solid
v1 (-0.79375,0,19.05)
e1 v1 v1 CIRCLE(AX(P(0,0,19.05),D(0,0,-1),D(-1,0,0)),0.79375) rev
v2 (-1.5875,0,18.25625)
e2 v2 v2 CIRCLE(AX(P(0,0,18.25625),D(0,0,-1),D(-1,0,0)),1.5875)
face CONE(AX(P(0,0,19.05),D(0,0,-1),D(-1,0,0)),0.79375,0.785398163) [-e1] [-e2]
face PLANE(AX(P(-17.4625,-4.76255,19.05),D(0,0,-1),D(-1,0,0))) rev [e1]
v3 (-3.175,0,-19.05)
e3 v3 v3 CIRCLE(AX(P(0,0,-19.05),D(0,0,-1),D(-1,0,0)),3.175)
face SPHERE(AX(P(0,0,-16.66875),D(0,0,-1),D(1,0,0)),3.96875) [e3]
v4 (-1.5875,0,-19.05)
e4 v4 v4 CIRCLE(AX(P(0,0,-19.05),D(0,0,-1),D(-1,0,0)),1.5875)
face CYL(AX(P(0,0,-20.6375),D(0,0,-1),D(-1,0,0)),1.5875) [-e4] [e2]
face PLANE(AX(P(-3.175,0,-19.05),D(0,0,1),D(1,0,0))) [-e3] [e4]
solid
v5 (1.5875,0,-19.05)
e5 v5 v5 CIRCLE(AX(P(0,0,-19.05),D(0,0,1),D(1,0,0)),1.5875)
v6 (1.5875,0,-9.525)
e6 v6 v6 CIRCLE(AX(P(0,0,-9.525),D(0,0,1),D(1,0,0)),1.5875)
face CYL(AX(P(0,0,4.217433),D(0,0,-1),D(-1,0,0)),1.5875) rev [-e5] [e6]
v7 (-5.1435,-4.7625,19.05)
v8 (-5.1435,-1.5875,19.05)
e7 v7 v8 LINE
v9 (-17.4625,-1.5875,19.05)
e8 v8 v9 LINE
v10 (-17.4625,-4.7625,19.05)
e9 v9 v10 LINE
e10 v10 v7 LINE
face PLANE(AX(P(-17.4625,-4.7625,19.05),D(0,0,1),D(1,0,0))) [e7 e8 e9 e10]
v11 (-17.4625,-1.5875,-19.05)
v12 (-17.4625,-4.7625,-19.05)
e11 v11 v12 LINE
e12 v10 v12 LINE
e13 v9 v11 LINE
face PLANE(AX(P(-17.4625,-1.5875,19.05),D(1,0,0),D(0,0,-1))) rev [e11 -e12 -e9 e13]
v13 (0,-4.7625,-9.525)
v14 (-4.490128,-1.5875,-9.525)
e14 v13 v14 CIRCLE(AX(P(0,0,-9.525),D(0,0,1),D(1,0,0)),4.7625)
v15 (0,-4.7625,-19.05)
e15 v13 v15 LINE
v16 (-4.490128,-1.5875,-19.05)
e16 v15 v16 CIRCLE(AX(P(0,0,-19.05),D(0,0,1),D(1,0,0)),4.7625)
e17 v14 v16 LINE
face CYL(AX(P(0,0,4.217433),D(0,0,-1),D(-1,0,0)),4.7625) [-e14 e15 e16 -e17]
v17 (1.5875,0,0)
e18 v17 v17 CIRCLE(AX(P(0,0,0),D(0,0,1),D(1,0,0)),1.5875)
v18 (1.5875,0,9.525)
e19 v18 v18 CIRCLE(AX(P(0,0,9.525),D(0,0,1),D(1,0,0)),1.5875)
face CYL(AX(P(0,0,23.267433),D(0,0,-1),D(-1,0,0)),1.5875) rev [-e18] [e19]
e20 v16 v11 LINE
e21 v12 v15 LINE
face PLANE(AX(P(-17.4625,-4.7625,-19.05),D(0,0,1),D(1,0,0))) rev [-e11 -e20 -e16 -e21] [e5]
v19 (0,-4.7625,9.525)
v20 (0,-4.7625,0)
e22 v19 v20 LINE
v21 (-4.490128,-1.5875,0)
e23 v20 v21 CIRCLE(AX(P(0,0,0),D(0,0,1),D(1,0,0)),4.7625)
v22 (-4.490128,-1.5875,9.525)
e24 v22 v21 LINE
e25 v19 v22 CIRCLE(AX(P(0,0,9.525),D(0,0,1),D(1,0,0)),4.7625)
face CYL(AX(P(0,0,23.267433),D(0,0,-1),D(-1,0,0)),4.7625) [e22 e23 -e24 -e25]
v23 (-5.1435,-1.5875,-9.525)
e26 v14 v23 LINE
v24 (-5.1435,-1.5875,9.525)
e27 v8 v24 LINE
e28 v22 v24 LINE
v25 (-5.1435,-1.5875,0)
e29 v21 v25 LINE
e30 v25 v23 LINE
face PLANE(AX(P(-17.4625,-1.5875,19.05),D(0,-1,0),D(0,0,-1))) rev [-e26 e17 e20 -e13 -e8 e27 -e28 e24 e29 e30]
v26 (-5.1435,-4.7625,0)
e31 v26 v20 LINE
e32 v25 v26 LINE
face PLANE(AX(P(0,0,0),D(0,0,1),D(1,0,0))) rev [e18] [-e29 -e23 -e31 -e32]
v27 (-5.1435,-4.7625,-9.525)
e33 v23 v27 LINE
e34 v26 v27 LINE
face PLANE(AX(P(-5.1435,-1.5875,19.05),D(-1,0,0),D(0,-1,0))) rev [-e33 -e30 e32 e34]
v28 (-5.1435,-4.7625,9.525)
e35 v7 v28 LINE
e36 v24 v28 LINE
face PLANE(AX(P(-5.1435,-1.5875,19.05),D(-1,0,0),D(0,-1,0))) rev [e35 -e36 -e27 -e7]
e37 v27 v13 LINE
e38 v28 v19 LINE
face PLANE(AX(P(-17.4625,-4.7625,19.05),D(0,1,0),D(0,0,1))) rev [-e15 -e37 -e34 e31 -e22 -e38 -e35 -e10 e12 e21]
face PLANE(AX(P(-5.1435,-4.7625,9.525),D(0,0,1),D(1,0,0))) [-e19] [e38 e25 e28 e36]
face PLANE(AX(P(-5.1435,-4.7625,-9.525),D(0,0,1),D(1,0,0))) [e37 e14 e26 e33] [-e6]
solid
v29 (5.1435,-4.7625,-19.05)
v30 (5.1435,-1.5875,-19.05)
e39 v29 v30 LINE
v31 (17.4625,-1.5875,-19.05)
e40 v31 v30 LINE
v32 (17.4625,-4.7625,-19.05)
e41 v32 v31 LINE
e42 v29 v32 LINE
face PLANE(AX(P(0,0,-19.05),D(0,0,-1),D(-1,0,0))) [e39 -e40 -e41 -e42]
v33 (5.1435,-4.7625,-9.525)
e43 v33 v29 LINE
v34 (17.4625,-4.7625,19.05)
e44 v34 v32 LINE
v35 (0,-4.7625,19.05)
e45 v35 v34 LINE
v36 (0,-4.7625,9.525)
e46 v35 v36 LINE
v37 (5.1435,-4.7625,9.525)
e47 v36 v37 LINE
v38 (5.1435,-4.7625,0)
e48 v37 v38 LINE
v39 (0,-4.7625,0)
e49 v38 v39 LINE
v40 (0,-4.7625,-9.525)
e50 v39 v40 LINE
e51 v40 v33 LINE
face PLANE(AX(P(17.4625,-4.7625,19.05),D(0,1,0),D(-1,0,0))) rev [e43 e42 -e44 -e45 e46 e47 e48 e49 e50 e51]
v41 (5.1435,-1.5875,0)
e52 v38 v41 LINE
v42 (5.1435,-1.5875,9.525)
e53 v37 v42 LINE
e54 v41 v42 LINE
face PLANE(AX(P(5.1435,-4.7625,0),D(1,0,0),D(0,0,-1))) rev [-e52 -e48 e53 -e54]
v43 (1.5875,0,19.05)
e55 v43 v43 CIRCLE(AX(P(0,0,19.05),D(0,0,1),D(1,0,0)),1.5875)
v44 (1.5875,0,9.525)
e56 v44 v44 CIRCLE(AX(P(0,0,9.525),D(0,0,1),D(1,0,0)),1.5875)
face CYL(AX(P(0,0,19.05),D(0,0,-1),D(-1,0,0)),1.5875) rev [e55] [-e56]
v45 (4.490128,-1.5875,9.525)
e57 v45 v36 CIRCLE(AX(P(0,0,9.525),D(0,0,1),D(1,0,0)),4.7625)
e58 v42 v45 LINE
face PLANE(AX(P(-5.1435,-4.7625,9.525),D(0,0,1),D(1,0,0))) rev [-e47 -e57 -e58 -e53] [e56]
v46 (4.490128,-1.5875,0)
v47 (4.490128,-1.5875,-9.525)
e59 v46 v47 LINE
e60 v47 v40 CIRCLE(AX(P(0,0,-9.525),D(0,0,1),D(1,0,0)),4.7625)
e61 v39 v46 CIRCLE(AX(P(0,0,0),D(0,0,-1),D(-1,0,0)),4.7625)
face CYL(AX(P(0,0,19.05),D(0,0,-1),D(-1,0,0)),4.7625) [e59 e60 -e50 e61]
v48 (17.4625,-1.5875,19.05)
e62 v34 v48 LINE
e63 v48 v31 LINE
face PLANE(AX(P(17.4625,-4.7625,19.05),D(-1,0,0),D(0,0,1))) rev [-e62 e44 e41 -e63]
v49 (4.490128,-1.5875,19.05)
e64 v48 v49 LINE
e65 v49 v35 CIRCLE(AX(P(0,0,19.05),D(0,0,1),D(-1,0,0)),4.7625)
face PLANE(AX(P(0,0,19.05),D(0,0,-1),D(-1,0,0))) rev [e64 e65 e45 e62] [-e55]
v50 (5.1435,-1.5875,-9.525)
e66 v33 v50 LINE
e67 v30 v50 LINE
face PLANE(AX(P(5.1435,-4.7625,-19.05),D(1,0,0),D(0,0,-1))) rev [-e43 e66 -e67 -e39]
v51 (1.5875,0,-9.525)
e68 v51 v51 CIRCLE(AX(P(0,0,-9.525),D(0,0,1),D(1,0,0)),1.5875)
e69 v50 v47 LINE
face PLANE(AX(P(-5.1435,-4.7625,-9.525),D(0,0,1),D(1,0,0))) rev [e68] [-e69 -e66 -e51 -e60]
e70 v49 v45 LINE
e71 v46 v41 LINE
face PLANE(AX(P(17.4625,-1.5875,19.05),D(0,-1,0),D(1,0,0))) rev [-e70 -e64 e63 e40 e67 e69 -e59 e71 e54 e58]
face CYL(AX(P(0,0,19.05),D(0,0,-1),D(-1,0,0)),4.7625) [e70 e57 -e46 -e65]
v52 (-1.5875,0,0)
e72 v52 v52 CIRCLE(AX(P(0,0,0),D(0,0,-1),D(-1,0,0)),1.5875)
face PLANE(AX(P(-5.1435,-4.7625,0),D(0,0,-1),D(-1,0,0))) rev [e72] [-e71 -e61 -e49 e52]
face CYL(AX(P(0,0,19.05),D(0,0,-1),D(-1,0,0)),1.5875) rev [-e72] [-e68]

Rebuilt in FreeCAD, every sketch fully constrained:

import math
import FreeCAD as App
import Part
import Sketcher

V = App.Vector
Q = App.Units.Quantity


def edges_at(feature, points):
    """Names of the edges that pass closest to the given points."""
    edges = feature.Shape.Edges
    near = lambda p: min(range(len(edges)), key=lambda i: edges[i].distToShape(Part.Vertex(*p))[0])
    return sorted({f"Edge{near(p) + 1}" for p in points})


def add_polygon(sketch, points):
    """Adds a closed chain of lines whose ends are joined by coincident constraints."""
    first, n = sketch.GeometryCount, len(points)
    for a, b in zip(points, points[1:] + points[:1]):
        sketch.addGeometry(Part.LineSegment(App.Vector(*a, 0), App.Vector(*b, 0)), False)
    for i in range(n):
        sketch.addConstraint(Sketcher.Constraint("Coincident", first + i, 2, first + (i + 1) % n, 1))

doc = App.newDocument("Part")
params = doc.addObject("Spreadsheet::Sheet", "Params")
for row, (alias, value) in enumerate([
    ("sketch1_diameter", "0.125 in"),
    ("sketch1_radius", "0.1875 in"),
    ("sketch1_width", "0.6875 in"),
    ("sketch1_height", "0.125 in"),
    ("pad1_length", "1.5 in"),
    ("sketch2_width", "0.405 in"),
    ("sketch2_height", "0.375 in"),
    ("sketch3_width", "0.485 in"),
    ("sketch3_height", "0.125 in"),
    ("pad2_length", "1.5 in"),
    ("sketch4_diameter", "0.125 in"),
    ("sketch4_radius", "0.1875 in"),
    ("sketch4_height", "0.125 in"),
    ("pad3_length", "0.375 in"),
    ("sketch5_diameter", "0.125 in"),
    ("sketch5_radius", "0.1875 in"),
    ("sketch5_height", "0.125 in"),
    ("pad4_length", "0.375 in"),
    ("sketch6_height", "1.5 in"),
    ("sketch6_radius", "0.15625 in"),
    ("sketch6_width", "0.0625 in"),
    ("sketch6_height2", "1.625 in"),
    ("revolution_angle", "360 deg"),
    ("sketch7_width", "1.375 in"),
    ("sketch7_height", "0.0625 in"),
    ("chamfer_size", "0.03125 in"),
], start=1):
    params.set(f"A{row}", alias)
    params.set(f"B{row}", "=" + value)
    params.setAlias(f"B{row}", alias)

body = doc.addObject("PartDesign::Body", "Body")

sketch1 = body.newObject("Sketcher::SketchObject", "Sketch")
sketch1.AttachmentSupport = (doc.getObject("XY_Plane"), [""])
sketch1.MapMode = "FlatFace"
sketch1.addGeometry([
    Part.LineSegment(V(0, -4.8, 0), V(17.5, -4.8, 0)),
    Part.LineSegment(V(17.5, -4.8, 0), V(17.5, -1.6, 0)),
    Part.LineSegment(V(17.5, -1.6, 0), V(4.5, -1.6, 0)),
    Part.ArcOfCircle(Part.Circle(V(0, 0, 0), V(0, 0, 1), 4.8), math.radians(-19), math.radians(270)),
    Part.Circle(V(0, 0, 0), V(0, 0, 1), 1.6),
], False)
sketch1.addConstraint([
    Sketcher.Constraint("Coincident", 0, 2, 1, 1),
    Sketcher.Constraint("Coincident", 1, 2, 2, 1),
    Sketcher.Constraint("Coincident", 2, 2, 3, 1),
    Sketcher.Constraint("Tangent", 3, 2, 0, 1),
    Sketcher.Constraint("Horizontal", 0),
    Sketcher.Constraint("Vertical", 1),
    Sketcher.Constraint("Horizontal", 2),
    Sketcher.Constraint("Coincident", 3, 3, -1, 1),
    Sketcher.Constraint("Coincident", 4, 3, -1, 1),
    Sketcher.Constraint("Diameter", 4, Q("0.125 in")),
    Sketcher.Constraint("Radius", 3, Q("0.1875 in")),
    Sketcher.Constraint("DistanceX", 0, 1, 0, 2, Q("0.6875 in")),
    Sketcher.Constraint("DistanceY", 1, 1, 1, 2, Q("0.125 in")),
])
sketch1.setExpression("Constraints[9]", "Params.sketch1_diameter")
sketch1.setExpression("Constraints[10]", "Params.sketch1_radius")
sketch1.setExpression("Constraints[11]", "Params.sketch1_width")
sketch1.setExpression("Constraints[12]", "Params.sketch1_height")
pad1 = body.newObject("PartDesign::Pad", "Pad")
pad1.Profile = sketch1
pad1.setExpression("Length", "Params.pad1_length")
pad1.Midplane = True

sketch2 = body.newObject("Sketcher::SketchObject", "Sketch001")
sketch2.AttachmentSupport = (doc.getObject("XZ_Plane"), [""])
sketch2.MapMode = "FlatFace"
add_polygon(sketch2, [(-5, -19), (-5, -10), (5, -10), (5, -19)])
add_polygon(sketch2, [(-5, 0), (-5, 10), (5, 10), (5, 0)])
sketch2.addConstraint([
    Sketcher.Constraint("Vertical", 0),
    Sketcher.Constraint("Horizontal", 1),
    Sketcher.Constraint("Vertical", 2),
    Sketcher.Constraint("Horizontal", 3),
    Sketcher.Constraint("Vertical", 4),
    Sketcher.Constraint("Horizontal", 5),
    Sketcher.Constraint("Vertical", 6),
    Sketcher.Constraint("Horizontal", 7),
    Sketcher.Constraint("Symmetric", 1, 2, 4, 2, -1, 1),
    Sketcher.Constraint("Symmetric", 6, 2, 7, 2, -1, 1),
    Sketcher.Constraint("Vertical", 3, 2, 4, 2),
    Sketcher.Constraint("Equal", 2, 4),
    Sketcher.Constraint("DistanceX", 1, 1, 1, 2, Q("0.405 in")),
    Sketcher.Constraint("DistanceY", 0, 1, 0, 2, Q("0.375 in")),
])
sketch2.setExpression("Constraints[20]", "Params.sketch2_width")
sketch2.setExpression("Constraints[21]", "Params.sketch2_height")
pocket1 = body.newObject("PartDesign::Pocket", "Pocket")
pocket1.Profile = sketch2
pocket1.Type = "ThroughAll"
pocket1.Midplane = True
body2 = doc.addObject("PartDesign::Body", "Body001")

sketch3 = body2.newObject("Sketcher::SketchObject", "Sketch002")
sketch3.AttachmentSupport = (doc.getObject("XY_Plane001"), [""])
sketch3.MapMode = "FlatFace"
add_polygon(sketch3, [(-17.5, -1.6), (-17.5, -4.8), (-5.1, -4.8), (-5.1, -1.6)])
sketch3.addConstraint([
    Sketcher.Constraint("Vertical", 0),
    Sketcher.Constraint("Horizontal", 1),
    Sketcher.Constraint("Vertical", 2),
    Sketcher.Constraint("Horizontal", 3),
    Sketcher.Constraint("DistanceX", 1, 1, 1, 2, Q("0.485 in")),
    Sketcher.Constraint("DistanceY", 0, 2, 0, 1, Q("0.125 in")),
    Sketcher.Constraint("DistanceX", 0, 2, -1, 1, Q("0.6875 in")),
    Sketcher.Constraint("DistanceY", 0, 2, -1, 1, Q("0.1875 in")),
])
sketch3.setExpression("Constraints[8]", "Params.sketch3_width")
sketch3.setExpression("Constraints[9]", "Params.sketch3_height")
pad2 = body2.newObject("PartDesign::Pad", "Pad001")
pad2.Profile = sketch3
pad2.setExpression("Length", "Params.pad2_length")
pad2.Midplane = True

sketch4 = body2.newObject("Sketcher::SketchObject", "Sketch003")
sketch4.AttachmentSupport = (doc.getObject("XY_Plane001"), [""])
sketch4.MapMode = "FlatFace"
sketch4.AttachmentOffset = App.Placement(V(0, 0, -0.75 * 25.4), App.Rotation())
sketch4.addGeometry([
    Part.LineSegment(V(-5.1, -4.8, 0), V(0, -4.8, 0)),
    Part.ArcOfCircle(Part.Circle(V(0, 0, 0), V(0, 0, 1), 4.8), math.radians(-90), math.radians(199)),
    Part.LineSegment(V(-4.5, -1.6, 0), V(-5.1, -1.6, 0)),
    Part.LineSegment(V(-5.1, -1.6, 0), V(-5.1, -4.8, 0)),
    Part.Circle(V(0, 0, 0), V(0, 0, 1), 1.6),
], False)
sketch4.addConstraint([
    Sketcher.Constraint("Tangent", 0, 2, 1, 1),
    Sketcher.Constraint("Coincident", 1, 2, 2, 1),
    Sketcher.Constraint("Coincident", 2, 2, 3, 1),
    Sketcher.Constraint("Coincident", 3, 2, 0, 1),
    Sketcher.Constraint("Horizontal", 0),
    Sketcher.Constraint("Horizontal", 2),
    Sketcher.Constraint("Vertical", 3),
    Sketcher.Constraint("Coincident", 1, 3, -1, 1),
    Sketcher.Constraint("Coincident", 4, 3, -1, 1),
    Sketcher.Constraint("Diameter", 4, Q("0.125 in")),
    Sketcher.Constraint("Radius", 1, Q("0.1875 in")),
    Sketcher.Constraint("DistanceY", 3, 2, 3, 1, Q("0.125 in")),
    Sketcher.Constraint("DistanceX", 0, 1, 0, 2, Q("0.2025 in")),
])
sketch4.setExpression("Constraints[9]", "Params.sketch4_diameter")
sketch4.setExpression("Constraints[10]", "Params.sketch4_radius")
sketch4.setExpression("Constraints[11]", "Params.sketch4_height")
pad3 = body2.newObject("PartDesign::Pad", "Pad002")
pad3.Profile = sketch4
pad3.setExpression("Length", "Params.pad3_length")

sketch5 = body2.newObject("Sketcher::SketchObject", "Sketch004")
sketch5.AttachmentSupport = (doc.getObject("XY_Plane001"), [""])
sketch5.MapMode = "FlatFace"
sketch5.addGeometry([
    Part.LineSegment(V(-5.1, -4.8, 0), V(0, -4.8, 0)),
    Part.ArcOfCircle(Part.Circle(V(0, 0, 0), V(0, 0, 1), 4.8), math.radians(-90), math.radians(199)),
    Part.LineSegment(V(-4.5, -1.6, 0), V(-5.1, -1.6, 0)),
    Part.LineSegment(V(-5.1, -1.6, 0), V(-5.1, -4.8, 0)),
    Part.Circle(V(0, 0, 0), V(0, 0, 1), 1.6),
], False)
sketch5.addConstraint([
    Sketcher.Constraint("Tangent", 0, 2, 1, 1),
    Sketcher.Constraint("Coincident", 1, 2, 2, 1),
    Sketcher.Constraint("Coincident", 2, 2, 3, 1),
    Sketcher.Constraint("Coincident", 3, 2, 0, 1),
    Sketcher.Constraint("Horizontal", 0),
    Sketcher.Constraint("Horizontal", 2),
    Sketcher.Constraint("Vertical", 3),
    Sketcher.Constraint("Coincident", 1, 3, -1, 1),
    Sketcher.Constraint("Coincident", 4, 3, -1, 1),
    Sketcher.Constraint("Diameter", 4, Q("0.125 in")),
    Sketcher.Constraint("Radius", 1, Q("0.1875 in")),
    Sketcher.Constraint("DistanceY", 3, 2, 3, 1, Q("0.125 in")),
    Sketcher.Constraint("DistanceX", 0, 1, 0, 2, Q("0.2025 in")),
])
sketch5.setExpression("Constraints[9]", "Params.sketch5_diameter")
sketch5.setExpression("Constraints[10]", "Params.sketch5_radius")
sketch5.setExpression("Constraints[11]", "Params.sketch5_height")
pad4 = body2.newObject("PartDesign::Pad", "Pad003")
pad4.Profile = sketch5
pad4.setExpression("Length", "Params.pad4_length")
body3 = doc.addObject("PartDesign::Body", "Body002")

sketch6 = body3.newObject("Sketcher::SketchObject", "Sketch005")
sketch6.AttachmentSupport = (doc.getObject("XZ_Plane002"), [""])
sketch6.MapMode = "FlatFace"
sketch6.addGeometry([
    Part.LineSegment(V(-3.2, -19.1, 0), V(-1.6, -19.1, 0)),
    Part.LineSegment(V(-1.6, -19.1, 0), V(-1.6, 19.1, 0)),
    Part.LineSegment(V(-1.6, 19.1, 0), V(-3.2, 19.1, 0)),
    Part.ArcOfCircle(Part.Circle(V(0, 16.7, 0), V(0, 0, 1), 4), math.radians(90), math.radians(143)),
    Part.LineSegment(V(0, 20.6, 0), V(0, -20.6, 0)),
    Part.ArcOfCircle(Part.Circle(V(0, -16.7, 0), V(0, 0, 1), 4), math.radians(-143), math.radians(-90)),
], False)
sketch6.addConstraint([
    Sketcher.Constraint("Coincident", 0, 2, 1, 1),
    Sketcher.Constraint("Coincident", 1, 2, 2, 1),
    Sketcher.Constraint("Coincident", 2, 2, 3, 2),
    Sketcher.Constraint("Coincident", 3, 1, 4, 1),
    Sketcher.Constraint("Coincident", 4, 2, 5, 2),
    Sketcher.Constraint("Coincident", 5, 1, 0, 1),
    Sketcher.Constraint("Horizontal", 0),
    Sketcher.Constraint("Vertical", 1),
    Sketcher.Constraint("Horizontal", 2),
    Sketcher.Constraint("Vertical", 4),
    Sketcher.Constraint("Equal", 3, 5),
    Sketcher.Constraint("Symmetric", 3, 3, 5, 3, -1, 1),
    Sketcher.Constraint("Symmetric", 2, 2, 5, 1, -1),
    Sketcher.Constraint("PointOnObject", 3, 1, -2),
    Sketcher.Constraint("DistanceY", 1, 1, 1, 2, Q("1.5 in")),
    Sketcher.Constraint("Radius", 3, Q("0.15625 in")),
    Sketcher.Constraint("DistanceX", 0, 1, 0, 2, Q("0.0625 in")),
    Sketcher.Constraint("DistanceY", 4, 2, 4, 1, Q("1.625 in")),
])
sketch6.setExpression("Constraints[14]", "Params.sketch6_height")
sketch6.setExpression("Constraints[15]", "Params.sketch6_radius")
sketch6.setExpression("Constraints[16]", "Params.sketch6_width")
sketch6.setExpression("Constraints[17]", "Params.sketch6_height2")
revolution = body3.newObject("PartDesign::Revolution", "Revolution")
revolution.Profile = sketch6
revolution.ReferenceAxis = (sketch6, ["V_Axis"])
revolution.setExpression("Angle", "Params.revolution_angle")

sketch7 = body3.newObject("Sketcher::SketchObject", "Sketch006")
sketch7.AttachmentSupport = (doc.getObject("XZ_Plane002"), [""])
sketch7.MapMode = "FlatFace"
add_polygon(sketch7, [(-17.5, 19.1), (-17.5, 20.6), (17.5, 20.6), (17.5, 19.1)])
sketch7.addConstraint([
    Sketcher.Constraint("Vertical", 0),
    Sketcher.Constraint("Horizontal", 1),
    Sketcher.Constraint("Vertical", 2),
    Sketcher.Constraint("Horizontal", 3),
    Sketcher.Constraint("DistanceX", 1, 1, 1, 2, Q("1.375 in")),
    Sketcher.Constraint("DistanceY", 0, 1, 0, 2, Q("0.0625 in")),
    Sketcher.Constraint("DistanceY", -1, 1, 2, 2, Q("0.75 in")),
    Sketcher.Constraint("DistanceX", 0, 2, -1, 1, Q("0.6875 in")),
])
sketch7.setExpression("Constraints[8]", "Params.sketch7_width")
sketch7.setExpression("Constraints[9]", "Params.sketch7_height")
pocket2 = body3.newObject("PartDesign::Pocket", "Pocket001")
pocket2.Profile = sketch7
pocket2.Type = "ThroughAll"
pocket2.Midplane = True
doc.recompute()

chamfer = body3.newObject("PartDesign::Chamfer", "Chamfer")
chamfer.Base = (pocket2, edges_at(pocket2, [(1.587, 0, 19.05)]))
chamfer.setExpression("Size", "Params.chamfer_size")

doc.recompute()
